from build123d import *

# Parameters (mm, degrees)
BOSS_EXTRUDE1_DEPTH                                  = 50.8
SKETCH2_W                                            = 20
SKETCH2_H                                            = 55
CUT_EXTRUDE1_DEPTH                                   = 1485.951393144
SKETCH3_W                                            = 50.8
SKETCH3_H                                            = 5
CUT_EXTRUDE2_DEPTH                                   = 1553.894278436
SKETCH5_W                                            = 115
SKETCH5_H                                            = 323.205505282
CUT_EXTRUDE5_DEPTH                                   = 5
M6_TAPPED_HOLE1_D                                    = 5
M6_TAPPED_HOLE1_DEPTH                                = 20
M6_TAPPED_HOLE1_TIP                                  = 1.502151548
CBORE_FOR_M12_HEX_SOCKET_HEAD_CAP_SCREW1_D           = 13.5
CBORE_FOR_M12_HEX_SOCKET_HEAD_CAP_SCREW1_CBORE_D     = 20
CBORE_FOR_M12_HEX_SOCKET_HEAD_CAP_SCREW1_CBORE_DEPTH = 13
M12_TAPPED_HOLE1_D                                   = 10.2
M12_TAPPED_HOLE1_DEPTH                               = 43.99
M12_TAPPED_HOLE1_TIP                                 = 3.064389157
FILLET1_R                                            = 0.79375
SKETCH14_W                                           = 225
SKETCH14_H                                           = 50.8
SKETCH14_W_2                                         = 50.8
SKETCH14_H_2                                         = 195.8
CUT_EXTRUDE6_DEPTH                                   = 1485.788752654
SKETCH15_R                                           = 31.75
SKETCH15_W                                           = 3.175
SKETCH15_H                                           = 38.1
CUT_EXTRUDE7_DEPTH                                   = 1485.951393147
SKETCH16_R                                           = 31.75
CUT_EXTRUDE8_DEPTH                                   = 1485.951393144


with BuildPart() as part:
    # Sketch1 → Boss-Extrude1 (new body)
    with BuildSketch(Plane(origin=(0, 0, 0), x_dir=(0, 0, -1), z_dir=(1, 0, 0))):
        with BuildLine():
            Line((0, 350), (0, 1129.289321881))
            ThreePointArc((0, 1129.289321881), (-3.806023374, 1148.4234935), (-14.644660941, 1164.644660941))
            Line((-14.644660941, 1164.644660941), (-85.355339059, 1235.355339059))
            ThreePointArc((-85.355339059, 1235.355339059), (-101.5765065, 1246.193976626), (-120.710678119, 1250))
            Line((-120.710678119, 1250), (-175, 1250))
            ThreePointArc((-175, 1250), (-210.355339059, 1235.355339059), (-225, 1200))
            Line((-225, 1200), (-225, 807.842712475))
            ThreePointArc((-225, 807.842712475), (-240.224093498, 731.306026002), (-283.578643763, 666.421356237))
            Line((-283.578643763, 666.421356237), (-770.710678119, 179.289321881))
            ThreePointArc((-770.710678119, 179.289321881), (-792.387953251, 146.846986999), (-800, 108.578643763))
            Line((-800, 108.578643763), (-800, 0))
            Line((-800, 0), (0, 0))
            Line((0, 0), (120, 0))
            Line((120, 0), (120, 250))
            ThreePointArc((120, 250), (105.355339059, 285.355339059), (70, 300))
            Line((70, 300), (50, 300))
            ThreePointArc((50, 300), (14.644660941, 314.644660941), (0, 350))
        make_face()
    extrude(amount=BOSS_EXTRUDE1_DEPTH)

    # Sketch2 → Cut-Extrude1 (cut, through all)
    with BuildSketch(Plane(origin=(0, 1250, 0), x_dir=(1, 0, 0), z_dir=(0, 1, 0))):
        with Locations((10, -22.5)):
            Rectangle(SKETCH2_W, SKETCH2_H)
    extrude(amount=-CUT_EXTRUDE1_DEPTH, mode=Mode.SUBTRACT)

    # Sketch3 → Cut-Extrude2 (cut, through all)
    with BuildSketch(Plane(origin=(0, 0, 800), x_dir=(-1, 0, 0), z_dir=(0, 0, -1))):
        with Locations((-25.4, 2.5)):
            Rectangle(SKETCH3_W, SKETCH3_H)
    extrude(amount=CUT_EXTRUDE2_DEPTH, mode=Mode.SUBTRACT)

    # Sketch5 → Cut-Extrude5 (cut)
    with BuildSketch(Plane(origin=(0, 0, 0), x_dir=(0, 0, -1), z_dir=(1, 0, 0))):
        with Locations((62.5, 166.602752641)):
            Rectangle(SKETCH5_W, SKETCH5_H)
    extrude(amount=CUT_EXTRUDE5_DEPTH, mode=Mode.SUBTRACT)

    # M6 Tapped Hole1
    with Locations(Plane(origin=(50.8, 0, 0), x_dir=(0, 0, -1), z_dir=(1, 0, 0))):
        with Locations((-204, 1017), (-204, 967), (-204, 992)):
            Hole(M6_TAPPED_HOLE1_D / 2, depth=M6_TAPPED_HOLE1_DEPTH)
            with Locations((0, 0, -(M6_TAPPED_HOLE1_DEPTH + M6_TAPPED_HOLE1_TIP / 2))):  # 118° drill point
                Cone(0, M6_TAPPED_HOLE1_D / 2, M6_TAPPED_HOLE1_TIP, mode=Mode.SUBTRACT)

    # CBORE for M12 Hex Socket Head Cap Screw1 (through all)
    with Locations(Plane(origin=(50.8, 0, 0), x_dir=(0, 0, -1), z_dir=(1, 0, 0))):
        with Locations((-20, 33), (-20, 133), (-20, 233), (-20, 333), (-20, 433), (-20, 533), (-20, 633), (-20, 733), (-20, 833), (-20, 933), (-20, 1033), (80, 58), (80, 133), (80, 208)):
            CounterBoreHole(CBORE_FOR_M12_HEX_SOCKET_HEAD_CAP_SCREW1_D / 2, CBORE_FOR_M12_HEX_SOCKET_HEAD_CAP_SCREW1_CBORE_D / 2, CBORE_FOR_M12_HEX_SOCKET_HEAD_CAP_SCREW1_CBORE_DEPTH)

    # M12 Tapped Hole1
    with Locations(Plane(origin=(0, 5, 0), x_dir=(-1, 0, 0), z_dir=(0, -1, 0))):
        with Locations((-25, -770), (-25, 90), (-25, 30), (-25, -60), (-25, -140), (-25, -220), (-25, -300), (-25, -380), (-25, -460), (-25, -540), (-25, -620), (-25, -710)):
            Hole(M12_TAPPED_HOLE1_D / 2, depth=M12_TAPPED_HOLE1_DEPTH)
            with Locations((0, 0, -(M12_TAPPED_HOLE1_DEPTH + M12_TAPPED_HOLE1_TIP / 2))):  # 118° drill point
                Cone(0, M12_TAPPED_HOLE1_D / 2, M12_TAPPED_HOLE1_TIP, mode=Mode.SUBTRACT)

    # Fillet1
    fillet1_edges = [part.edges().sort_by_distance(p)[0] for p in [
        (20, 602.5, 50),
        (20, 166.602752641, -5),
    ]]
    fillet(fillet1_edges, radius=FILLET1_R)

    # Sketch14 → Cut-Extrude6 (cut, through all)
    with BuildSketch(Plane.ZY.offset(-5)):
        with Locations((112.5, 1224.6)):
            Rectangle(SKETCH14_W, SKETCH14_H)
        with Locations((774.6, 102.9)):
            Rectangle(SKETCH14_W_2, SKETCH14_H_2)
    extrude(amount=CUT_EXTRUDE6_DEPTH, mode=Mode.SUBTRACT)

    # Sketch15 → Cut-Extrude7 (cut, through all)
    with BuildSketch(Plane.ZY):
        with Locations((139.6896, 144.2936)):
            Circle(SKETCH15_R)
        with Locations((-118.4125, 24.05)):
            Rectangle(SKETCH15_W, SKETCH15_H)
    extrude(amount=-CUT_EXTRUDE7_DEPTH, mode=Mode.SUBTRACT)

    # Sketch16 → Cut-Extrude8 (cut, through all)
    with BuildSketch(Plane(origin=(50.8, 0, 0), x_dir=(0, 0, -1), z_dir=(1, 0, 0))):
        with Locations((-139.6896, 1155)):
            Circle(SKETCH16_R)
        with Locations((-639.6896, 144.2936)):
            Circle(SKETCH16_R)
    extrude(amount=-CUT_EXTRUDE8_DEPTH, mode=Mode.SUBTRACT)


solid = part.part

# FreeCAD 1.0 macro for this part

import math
import FreeCAD as App
import Part
import Sketcher
from FreeCAD import Vector
Q = App.Units.Quantity


def edges_at(feature, points):
    """Names of the edges that pass closest to the given points."""
    edges = feature.Shape.Edges
    near = lambda p: min(range(len(edges)), key=lambda i: edges[i].distToShape(Part.Vertex(*p))[0])
    return sorted({f"Edge{near(p) + 1}" for p in points})


def add_polygon(sketch, points):
    """Adds a closed chain of lines whose ends are joined by coincident constraints."""
    first, n = sketch.GeometryCount, len(points)
    for a, b in zip(points, points[1:] + points[:1]):
        sketch.addGeometry(Part.LineSegment(App.Vector(*a, 0), App.Vector(*b, 0)), False)
    for i in range(n):
        sketch.addConstraint(Sketcher.Constraint("Coincident", first + i, 2, first + (i + 1) % n, 1))

doc = App.newDocument("Part")
body = doc.addObject("PartDesign::Body", "Body")

# Sketch on YZ plane
sketch1 = body.newObject("Sketcher::SketchObject", "Sketch")
sketch1.AttachmentSupport = (doc.getObject("YZ_Plane"), [""])
sketch1.MapMode = "FlatFace"
sketch1.addGeometry([
    Part.LineSegment(Vector(350, 0, 0), Vector(1129, 0, 0)),  # 0
    Part.ArcOfCircle(Part.Circle(Vector(1129, 50, 0), Vector(0, 0, 1), 50), math.radians(-90), math.radians(-45)),  # 1
    Part.LineSegment(Vector(1165, 15, 0), Vector(1235, 85, 0)),  # 2
    Part.ArcOfCircle(Part.Circle(Vector(1200, 121, 0), Vector(0, 0, 1), 50), math.radians(-45), math.radians(0)),  # 3
    Part.LineSegment(Vector(1250, 121, 0), Vector(1250, 175, 0)),  # 4
    Part.ArcOfCircle(Part.Circle(Vector(1200, 175, 0), Vector(0, 0, 1), 50), math.radians(0), math.radians(90)),  # 5
    Part.LineSegment(Vector(1200, 225, 0), Vector(808, 225, 0)),  # 6
    Part.ArcOfCircle(Part.Circle(Vector(808, 425, 0), Vector(0, 0, 1), 200), math.radians(-135), math.radians(-90)),  # 7
    Part.LineSegment(Vector(666, 284, 0), Vector(179, 771, 0)),  # 8
    Part.ArcOfCircle(Part.Circle(Vector(109, 700, 0), Vector(0, 0, 1), 100), math.radians(45), math.radians(90)),  # 9
    Part.LineSegment(Vector(109, 800, 0), Vector(0, 800, 0)),  # 10
    Part.LineSegment(Vector(0, 800, 0), Vector(0, -120, 0)),  # 11
    Part.LineSegment(Vector(0, -120, 0), Vector(250, -120, 0)),  # 12
    Part.ArcOfCircle(Part.Circle(Vector(250, -70, 0), Vector(0, 0, 1), 50), math.radians(-90), math.radians(0)),  # 13
    Part.LineSegment(Vector(300, -70, 0), Vector(300, -50, 0)),  # 14
    Part.ArcOfCircle(Part.Circle(Vector(350, -50, 0), Vector(0, 0, 1), 50), math.radians(90), math.radians(180)),  # 15
], False)
sketch1.addConstraint([
    Sketcher.Constraint("Tangent", 0, 2, 1, 1),
    Sketcher.Constraint("Tangent", 1, 2, 2, 1),
    Sketcher.Constraint("Tangent", 2, 2, 3, 1),
    Sketcher.Constraint("Tangent", 3, 2, 4, 1),
    Sketcher.Constraint("Tangent", 4, 2, 5, 1),
    Sketcher.Constraint("Tangent", 5, 2, 6, 1),
    Sketcher.Constraint("Tangent", 6, 2, 7, 2),
    Sketcher.Constraint("Tangent", 7, 1, 8, 1),
    Sketcher.Constraint("Tangent", 8, 2, 9, 1),
    Sketcher.Constraint("Tangent", 9, 2, 10, 1),
    Sketcher.Constraint("Coincident", 10, 2, 11, 1),
    Sketcher.Constraint("Coincident", 11, 2, 12, 1),
    Sketcher.Constraint("Tangent", 12, 2, 13, 1),
    Sketcher.Constraint("Tangent", 13, 2, 14, 1),
    Sketcher.Constraint("Tangent", 14, 2, 15, 2),
    Sketcher.Constraint("Tangent", 15, 1, 0, 1),
    Sketcher.Constraint("Horizontal", 0),
    Sketcher.Constraint("Vertical", 4),
    Sketcher.Constraint("Horizontal", 6),
    Sketcher.Constraint("Horizontal", 10),
    Sketcher.Constraint("Vertical", 11),
    Sketcher.Constraint("Horizontal", 12),
    Sketcher.Constraint("Vertical", 14),
    Sketcher.Constraint("Equal", 1, 3),
    Sketcher.Constraint("Equal", 3, 5),
    Sketcher.Constraint("Equal", 5, 13),
    Sketcher.Constraint("Equal", 13, 15),
    Sketcher.Constraint("PointOnObject", 0, 2, -1),
    Sketcher.Constraint("PointOnObject", 10, 2, -2),
    Sketcher.Constraint("Perpendicular", 2, 8),
    Sketcher.Constraint("Radius", 1, 50.0),
    Sketcher.Constraint("Radius", 7, 200.0),
    Sketcher.Constraint("Radius", 9, 100.0),
    Sketcher.Constraint("DistanceX", 12, 1, 12, 2, 250.0),
    Sketcher.Constraint("DistanceY", 11, 2, 11, 1, 920.0),
    Sketcher.Constraint("DistanceY", 14, 1, 14, 2, 20.0),
    Sketcher.Constraint("Angle", 2, Q("45 deg")),
    Sketcher.Constraint("Distance", 2, 100.0),
    Sketcher.Constraint("DistanceX", -1, 1, 3, 3, 1200.0),
    Sketcher.Constraint("DistanceY", -1, 1, 5, 3, 175.0),
    Sketcher.Constraint("DistanceX", 6, 2, 6, 1, 392.157288),
])
pad1 = body.newObject("PartDesign::Pad", "Pad")
pad1.Profile = sketch1
pad1.Length = 50.8

# Sketch on XZ plane
sketch2 = body.newObject("Sketcher::SketchObject", "Sketch001")
sketch2.AttachmentSupport = (doc.getObject("XZ_Plane"), [""])
sketch2.MapMode = "FlatFace"
sketch2.AttachmentOffset = App.Placement(Vector(0, 0, -1250), App.Rotation())
add_polygon(sketch2, [(0, -5), (0, 50), (20, 50), (20, -5)])  # lines 0-3
sketch2.addConstraint([
    Sketcher.Constraint("Vertical", 0),
    Sketcher.Constraint("Horizontal", 1),
    Sketcher.Constraint("Vertical", 2),
    Sketcher.Constraint("Horizontal", 3),
    Sketcher.Constraint("PointOnObject", 0, 2, -2),
    Sketcher.Constraint("DistanceX", 1, 1, 1, 2, 20.0),
    Sketcher.Constraint("DistanceY", 0, 1, 0, 2, 55.0),
    Sketcher.Constraint("DistanceY", -1, 1, 0, 2, 50.0),
])
pocket1 = body.newObject("PartDesign::Pocket", "Pocket")
pocket1.Profile = sketch2
pocket1.Type = "ThroughAll"
pocket1.Reversed = True

# Sketch on XY plane
sketch3 = body.newObject("Sketcher::SketchObject", "Sketch002")
sketch3.AttachmentSupport = (doc.getObject("XY_Plane"), [""])
sketch3.MapMode = "FlatFace"
sketch3.AttachmentOffset = App.Placement(Vector(0, 0, 800), App.Rotation())
add_polygon(sketch3, [(51, 5), (51, 0), (0, 0), (0, 5)])  # lines 0-3
sketch3.addConstraint([
    Sketcher.Constraint("Vertical", 0),
    Sketcher.Constraint("Horizontal", 1),
    Sketcher.Constraint("Vertical", 2),
    Sketcher.Constraint("Horizontal", 3),
    Sketcher.Constraint("Coincident", 1, 2, -1, 1),
    Sketcher.Constraint("DistanceY", 0, 2, 0, 1, 5.0),
    Sketcher.Constraint("DistanceX", 1, 2, 1, 1, 50.8),
])
pocket2 = body.newObject("PartDesign::Pocket", "Pocket001")
pocket2.Profile = sketch3
pocket2.Type = "ThroughAll"

# Sketch on YZ plane
sketch4 = body.newObject("Sketcher::SketchObject", "Sketch003")
sketch4.AttachmentSupport = (doc.getObject("YZ_Plane"), [""])
sketch4.MapMode = "FlatFace"
add_polygon(sketch4, [(328, -5), (5, -5), (5, -120), (328, -120)])  # lines 0-3
sketch4.addConstraint([
    Sketcher.Constraint("Horizontal", 0),
    Sketcher.Constraint("Vertical", 1),
    Sketcher.Constraint("Horizontal", 2),
    Sketcher.Constraint("Vertical", 3),
    Sketcher.Constraint("DistanceY", 1, 2, 1, 1, 115.0),
    Sketcher.Constraint("DistanceX", -1, 1, 0, 2, 5.0),
    Sketcher.Constraint("DistanceY", 0, 2, -1, 1, 5.0),
    Sketcher.Constraint("DistanceX", 0, 2, 0, 1, 323.205505),
])
pocket3 = body.newObject("PartDesign::Pocket", "Pocket002")
pocket3.Profile = sketch4
pocket3.Length = 5
pocket3.Reversed = True

# Sketch on YZ plane
sketch5 = body.newObject("Sketcher::SketchObject", "Sketch004")
sketch5.AttachmentSupport = (doc.getObject("YZ_Plane"), [""])
sketch5.MapMode = "FlatFace"
sketch5.AttachmentOffset = App.Placement(Vector(0, 0, 50.8), App.Rotation())
sketch5.addGeometry([
    Part.Circle(Vector(1017, 204, 0), Vector(0, 0, 1), 2.5),
    Part.Circle(Vector(967, 204, 0), Vector(0, 0, 1), 2.5),
    Part.Circle(Vector(992, 204, 0), Vector(0, 0, 1), 2.5),
], False)
sketch5.addConstraint([
    Sketcher.Constraint("Equal", 0, 1),
    Sketcher.Constraint("Equal", 1, 2),
    Sketcher.Constraint("Horizontal", 0, 3, 1, 3),
    Sketcher.Constraint("Horizontal", 1, 3, 2, 3),
    Sketcher.Constraint("Diameter", 0, 5.0),
    Sketcher.Constraint("DistanceX", -1, 1, 0, 3, 1017.0),
    Sketcher.Constraint("DistanceY", -1, 1, 0, 3, 204.0),
    Sketcher.Constraint("DistanceX", -1, 1, 1, 3, 967.0),
    Sketcher.Constraint("DistanceX", -1, 1, 2, 3, 992.0),
])
doc.recompute()
hole = body.newObject("PartDesign::Hole", "Hole")
hole.Profile = sketch5
hole.ThreadType = "None"
hole.Diameter = 5
hole.DepthType = "Dimension"
hole.Depth = 20
hole.DrillPoint = "Angled"
hole.DrillPointAngle = 118

# Sketch on YZ plane
sketch6 = body.newObject("Sketcher::SketchObject", "Sketch005")
sketch6.AttachmentSupport = (doc.getObject("YZ_Plane"), [""])
sketch6.MapMode = "FlatFace"
sketch6.AttachmentOffset = App.Placement(Vector(0, 0, 50.8), App.Rotation())
sketch6.addGeometry([
    Part.Circle(Vector(33, 20, 0), Vector(0, 0, 1), 7),  # 0
    Part.Circle(Vector(133, 20, 0), Vector(0, 0, 1), 7),  # 1
    Part.Circle(Vector(233, 20, 0), Vector(0, 0, 1), 7),  # 2
    Part.Circle(Vector(333, 20, 0), Vector(0, 0, 1), 7),  # 3
    Part.Circle(Vector(433, 20, 0), Vector(0, 0, 1), 7),  # 4
    Part.Circle(Vector(533, 20, 0), Vector(0, 0, 1), 7),  # 5
    Part.Circle(Vector(633, 20, 0), Vector(0, 0, 1), 7),  # 6
    Part.Circle(Vector(733, 20, 0), Vector(0, 0, 1), 7),  # 7
    Part.Circle(Vector(833, 20, 0), Vector(0, 0, 1), 7),  # 8
    Part.Circle(Vector(933, 20, 0), Vector(0, 0, 1), 7),  # 9
    Part.Circle(Vector(1033, 20, 0), Vector(0, 0, 1), 7),  # 10
    Part.Circle(Vector(58, -80, 0), Vector(0, 0, 1), 7),  # 11
    Part.Circle(Vector(133, -80, 0), Vector(0, 0, 1), 7),  # 12
    Part.Circle(Vector(208, -80, 0), Vector(0, 0, 1), 7),  # 13
], False)
sketch6.addConstraint([
    Sketcher.Constraint("Equal", 0, 1),
    Sketcher.Constraint("Equal", 1, 2),
    Sketcher.Constraint("Equal", 2, 3),
    Sketcher.Constraint("Equal", 3, 4),
    Sketcher.Constraint("Equal", 4, 5),
    Sketcher.Constraint("Equal", 5, 6),
    Sketcher.Constraint("Equal", 6, 7),
    Sketcher.Constraint("Equal", 7, 8),
    Sketcher.Constraint("Equal", 8, 9),
    Sketcher.Constraint("Equal", 9, 10),
    Sketcher.Constraint("Equal", 10, 11),
    Sketcher.Constraint("Equal", 11, 12),
    Sketcher.Constraint("Equal", 12, 13),
    Sketcher.Constraint("Horizontal", 0, 3, 1, 3),
    Sketcher.Constraint("Horizontal", 1, 3, 2, 3),
    Sketcher.Constraint("Horizontal", 2, 3, 3, 3),
    Sketcher.Constraint("Horizontal", 3, 3, 4, 3),
    Sketcher.Constraint("Horizontal", 4, 3, 5, 3),
    Sketcher.Constraint("Horizontal", 5, 3, 6, 3),
    Sketcher.Constraint("Horizontal", 6, 3, 7, 3),
    Sketcher.Constraint("Horizontal", 7, 3, 8, 3),
    Sketcher.Constraint("Horizontal", 8, 3, 9, 3),
    Sketcher.Constraint("Horizontal", 9, 3, 10, 3),
    Sketcher.Constraint("Horizontal", 11, 3, 12, 3),
    Sketcher.Constraint("Horizontal", 12, 3, 13, 3),
    Sketcher.Constraint("Vertical", 1, 3, 12, 3),
    Sketcher.Constraint("Diameter", 0, 13.5),
    Sketcher.Constraint("DistanceX", -1, 1, 0, 3, 33.0),
    Sketcher.Constraint("DistanceY", -1, 1, 0, 3, 20.0),
    Sketcher.Constraint("DistanceX", -1, 1, 1, 3, 133.0),
    Sketcher.Constraint("DistanceX", -1, 1, 2, 3, 233.0),
    Sketcher.Constraint("DistanceX", -1, 1, 3, 3, 333.0),
    Sketcher.Constraint("DistanceX", -1, 1, 4, 3, 433.0),
    Sketcher.Constraint("DistanceX", -1, 1, 5, 3, 533.0),
    Sketcher.Constraint("DistanceX", -1, 1, 6, 3, 633.0),
    Sketcher.Constraint("DistanceX", -1, 1, 7, 3, 733.0),
    Sketcher.Constraint("DistanceX", -1, 1, 8, 3, 833.0),
    Sketcher.Constraint("DistanceX", -1, 1, 9, 3, 933.0),
    Sketcher.Constraint("DistanceX", -1, 1, 10, 3, 1033.0),
    Sketcher.Constraint("DistanceX", -1, 1, 11, 3, 58.0),
    Sketcher.Constraint("DistanceY", 11, 3, -1, 1, 80.0),
    Sketcher.Constraint("DistanceX", -1, 1, 13, 3, 208.0),
])
doc.recompute()
hole2 = body.newObject("PartDesign::Hole", "Hole001")
hole2.Profile = sketch6
hole2.ThreadType = "None"
hole2.Diameter = 13.5
hole2.DepthType = "ThroughAll"
hole2.HoleCutType = "Counterbore"
hole2.HoleCutDiameter = 20
hole2.HoleCutDepth = 13

# Sketch on XZ plane
sketch7 = body.newObject("Sketcher::SketchObject", "Sketch006")
sketch7.AttachmentSupport = (doc.getObject("XZ_Plane"), [""])
sketch7.MapMode = "FlatFace"
sketch7.AttachmentOffset = App.Placement(Vector(0, 0, -5), App.Rotation())
sketch7.addGeometry([
    Part.Circle(Vector(25, 770, 0), Vector(0, 0, 1), 5),  # 0
    Part.Circle(Vector(25, -90, 0), Vector(0, 0, 1), 5),  # 1
    Part.Circle(Vector(25, -30, 0), Vector(0, 0, 1), 5),  # 2
    Part.Circle(Vector(25, 60, 0), Vector(0, 0, 1), 5),  # 3
    Part.Circle(Vector(25, 140, 0), Vector(0, 0, 1), 5),  # 4
    Part.Circle(Vector(25, 220, 0), Vector(0, 0, 1), 5),  # 5
    Part.Circle(Vector(25, 300, 0), Vector(0, 0, 1), 5),  # 6
    Part.Circle(Vector(25, 380, 0), Vector(0, 0, 1), 5),  # 7
    Part.Circle(Vector(25, 460, 0), Vector(0, 0, 1), 5),  # 8
    Part.Circle(Vector(25, 540, 0), Vector(0, 0, 1), 5),  # 9
    Part.Circle(Vector(25, 620, 0), Vector(0, 0, 1), 5),  # 10
    Part.Circle(Vector(25, 710, 0), Vector(0, 0, 1), 5),  # 11
], False)
sketch7.addConstraint([
    Sketcher.Constraint("Equal", 0, 1),
    Sketcher.Constraint("Equal", 1, 2),
    Sketcher.Constraint("Equal", 2, 3),
    Sketcher.Constraint("Equal", 3, 4),
    Sketcher.Constraint("Equal", 4, 5),
    Sketcher.Constraint("Equal", 5, 6),
    Sketcher.Constraint("Equal", 6, 7),
    Sketcher.Constraint("Equal", 7, 8),
    Sketcher.Constraint("Equal", 8, 9),
    Sketcher.Constraint("Equal", 9, 10),
    Sketcher.Constraint("Equal", 10, 11),
    Sketcher.Constraint("Vertical", 0, 3, 1, 3),
    Sketcher.Constraint("Vertical", 1, 3, 2, 3),
    Sketcher.Constraint("Vertical", 2, 3, 3, 3),
    Sketcher.Constraint("Vertical", 3, 3, 4, 3),
    Sketcher.Constraint("Vertical", 4, 3, 5, 3),
    Sketcher.Constraint("Vertical", 5, 3, 6, 3),
    Sketcher.Constraint("Vertical", 6, 3, 7, 3),
    Sketcher.Constraint("Vertical", 7, 3, 8, 3),
    Sketcher.Constraint("Vertical", 8, 3, 9, 3),
    Sketcher.Constraint("Vertical", 9, 3, 10, 3),
    Sketcher.Constraint("Vertical", 10, 3, 11, 3),
    Sketcher.Constraint("Diameter", 0, 10.2),
    Sketcher.Constraint("DistanceX", -1, 1, 0, 3, 25.0),
    Sketcher.Constraint("DistanceY", -1, 1, 0, 3, 770.0),
    Sketcher.Constraint("DistanceY", 1, 3, -1, 1, 90.0),
    Sketcher.Constraint("DistanceY", 2, 3, -1, 1, 30.0),
    Sketcher.Constraint("DistanceY", -1, 1, 3, 3, 60.0),
    Sketcher.Constraint("DistanceY", -1, 1, 4, 3, 140.0),
    Sketcher.Constraint("DistanceY", -1, 1, 5, 3, 220.0),
    Sketcher.Constraint("DistanceY", -1, 1, 6, 3, 300.0),
    Sketcher.Constraint("DistanceY", -1, 1, 7, 3, 380.0),
    Sketcher.Constraint("DistanceY", -1, 1, 8, 3, 460.0),
    Sketcher.Constraint("DistanceY", -1, 1, 9, 3, 540.0),
    Sketcher.Constraint("DistanceY", -1, 1, 10, 3, 620.0),
    Sketcher.Constraint("DistanceY", -1, 1, 11, 3, 710.0),
])
doc.recompute()
hole3 = body.newObject("PartDesign::Hole", "Hole002")
hole3.Profile = sketch7
hole3.ThreadType = "None"
hole3.Diameter = 10.2
hole3.DepthType = "Dimension"
hole3.Depth = 43.99
hole3.DrillPoint = "Angled"
hole3.DrillPointAngle = 118
doc.recompute()

fillet = body.newObject("PartDesign::Fillet", "Fillet")
fillet.Base = (hole3, edges_at(hole3, [(20, 602.5, 50), (20, 166.603, -5)]))
fillet.Radius = 0.79375

# Sketch on YZ plane
sketch8 = body.newObject("Sketcher::SketchObject", "Sketch007")
sketch8.AttachmentSupport = (doc.getObject("YZ_Plane"), [""])
sketch8.MapMode = "FlatFace"
sketch8.AttachmentOffset = App.Placement(Vector(0, 0, 5), App.Rotation())
add_polygon(sketch8, [(1250, 0), (1199, 0), (1199, 225), (1250, 225)])  # lines 0-3
add_polygon(sketch8, [(201, 749), (5, 749), (5, 800), (201, 800)])  # lines 4-7
sketch8.addConstraint([
    Sketcher.Constraint("Horizontal", 0),
    Sketcher.Constraint("Vertical", 1),
    Sketcher.Constraint("Horizontal", 2),
    Sketcher.Constraint("Vertical", 3),
    Sketcher.Constraint("Horizontal", 4),
    Sketcher.Constraint("Vertical", 5),
    Sketcher.Constraint("Horizontal", 6),
    Sketcher.Constraint("Vertical", 7),
    Sketcher.Constraint("PointOnObject", 0, 2, -1),
    Sketcher.Constraint("Equal", 2, 5),
    Sketcher.Constraint("DistanceY", 1, 1, 1, 2, 225.0),
    Sketcher.Constraint("DistanceX", 0, 2, 0, 1, 50.8),
    Sketcher.Constraint("DistanceX", 4, 2, 4, 1, 195.8),
    Sketcher.Constraint("DistanceX", -1, 1, 2, 2, 1250.0),
    Sketcher.Constraint("DistanceX", -1, 1, 4, 2, 5.0),
    Sketcher.Constraint("DistanceY", -1, 1, 5, 2, 800.0),
])
pocket4 = body.newObject("PartDesign::Pocket", "Pocket003")
pocket4.Profile = sketch8
pocket4.Type = "ThroughAll"

# Sketch on YZ plane
sketch9 = body.newObject("Sketcher::SketchObject", "Sketch008")
sketch9.AttachmentSupport = (doc.getObject("YZ_Plane"), [""])
sketch9.MapMode = "FlatFace"
sketch9.addGeometry(Part.Circle(Vector(144.3, 139.7, 0), Vector(0, 0, 1), 31.8), False)  # 0
add_polygon(sketch9, [(43.1, -120), (5, -120), (5, -116.8), (43.1, -116.8)])  # lines 1-4
sketch9.addConstraint([
    Sketcher.Constraint("Horizontal", 1),
    Sketcher.Constraint("Vertical", 2),
    Sketcher.Constraint("Horizontal", 3),
    Sketcher.Constraint("Vertical", 4),
    Sketcher.Constraint("Diameter", 0, 63.5),
    Sketcher.Constraint("DistanceX", 1, 2, 1, 1, 38.1),
    Sketcher.Constraint("DistanceX", -1, 1, 1, 2, 5.0),
    Sketcher.Constraint("DistanceY", 1, 2, -1, 1, 120.0),
    Sketcher.Constraint("DistanceY", 2, 1, 2, 2, 3.175),
    Sketcher.Constraint("DistanceX", -1, 1, 0, 3, 144.2936),
    Sketcher.Constraint("DistanceY", -1, 1, 0, 3, 139.6896),
])
pocket5 = body.newObject("PartDesign::Pocket", "Pocket004")
pocket5.Profile = sketch9
pocket5.Type = "ThroughAll"
pocket5.Reversed = True

# Sketch on YZ plane
sketch10 = body.newObject("Sketcher::SketchObject", "Sketch009")
sketch10.AttachmentSupport = (doc.getObject("YZ_Plane"), [""])
sketch10.MapMode = "FlatFace"
sketch10.AttachmentOffset = App.Placement(Vector(0, 0, 50.8), App.Rotation())
sketch10.addGeometry([
    Part.Circle(Vector(1155, 140, 0), Vector(0, 0, 1), 32),
    Part.Circle(Vector(144, 640, 0), Vector(0, 0, 1), 32),
], False)
sketch10.addConstraint([
    Sketcher.Constraint("Equal", 0, 1),
    Sketcher.Constraint("Diameter", 0, 63.5),
    Sketcher.Constraint("DistanceX", -1, 1, 0, 3, 1155.0),
    Sketcher.Constraint("DistanceY", 0, 3, 1, 3, 500.0),
    Sketcher.Constraint("DistanceY", -1, 1, 0, 3, 139.6896),
    Sketcher.Constraint("DistanceX", -1, 1, 1, 3, 144.2936),
])
pocket6 = body.newObject("PartDesign::Pocket", "Pocket005")
pocket6.Profile = sketch10
pocket6.Type = "ThroughAll"

doc.recompute()
